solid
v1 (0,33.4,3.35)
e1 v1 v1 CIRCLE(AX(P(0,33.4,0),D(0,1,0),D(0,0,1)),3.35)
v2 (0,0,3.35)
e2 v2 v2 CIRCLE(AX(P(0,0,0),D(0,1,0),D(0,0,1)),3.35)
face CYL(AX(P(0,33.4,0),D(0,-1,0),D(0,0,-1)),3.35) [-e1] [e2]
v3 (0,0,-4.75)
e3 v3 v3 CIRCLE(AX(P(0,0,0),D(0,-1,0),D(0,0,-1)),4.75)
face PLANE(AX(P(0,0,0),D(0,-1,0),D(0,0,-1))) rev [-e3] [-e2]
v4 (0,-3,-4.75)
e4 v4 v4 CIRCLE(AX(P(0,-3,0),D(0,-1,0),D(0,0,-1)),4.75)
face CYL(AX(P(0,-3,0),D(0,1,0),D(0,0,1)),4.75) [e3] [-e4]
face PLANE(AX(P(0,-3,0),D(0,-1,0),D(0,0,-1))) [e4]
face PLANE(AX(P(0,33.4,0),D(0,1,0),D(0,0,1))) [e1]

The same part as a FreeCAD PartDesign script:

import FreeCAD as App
import Part
import Sketcher
from FreeCAD import Vector
Q = App.Units.Quantity

doc = App.newDocument("Part")
params = doc.addObject("Spreadsheet::Sheet", "Params")
for row, (alias, value) in enumerate([
    ("sketch1_diameter", "6.7 mm"),
    ("pad1_length", "33.4 mm"),
    ("sketch2_diameter", "9.5 mm"),
    ("pad2_length", "3 mm"),
], start=1):
    params.set(f"A{row}", alias)
    params.set(f"B{row}", "=" + value)
    params.setAlias(f"B{row}", alias)

body = doc.addObject("PartDesign::Body", "Body")

# Sketch on XZ plane
sketch1 = doc.addObject("Sketcher::SketchObject", "Sketch")
body.addObject(sketch1)
sketch1.AttachmentSupport = (doc.XZ_Plane, [""])
sketch1.MapMode = "FlatFace"
sketch1.addGeometry(Part.Circle(Vector(0, 0, 0), Vector(0, 0, 1), 3.4), False)
sketch1.addConstraint(Sketcher.Constraint("Coincident", 0, 3, -1, 1))
sketch1.addConstraint(Sketcher.Constraint("Diameter", 0, Q("6.7 mm")))
sketch1.setExpression("Constraints[1]", "Params.sketch1_diameter")
pad1 = doc.addObject("PartDesign::Pad", "Pad")
body.addObject(pad1)
pad1.Profile = sketch1
pad1.setExpression("Length", "Params.pad1_length")
pad1.Reversed = True

# Sketch on XZ plane
sketch2 = doc.addObject("Sketcher::SketchObject", "Sketch001")
body.addObject(sketch2)
sketch2.AttachmentSupport = (doc.XZ_Plane, [""])
sketch2.MapMode = "FlatFace"
sketch2.addGeometry(Part.Circle(Vector(0, 0, 0), Vector(0, 0, 1), 4.8), False)
sketch2.addConstraint(Sketcher.Constraint("Coincident", 0, 3, -1, 1))
sketch2.addConstraint(Sketcher.Constraint("Diameter", 0, Q("9.5 mm")))
sketch2.setExpression("Constraints[1]", "Params.sketch2_diameter")
pad2 = doc.addObject("PartDesign::Pad", "Pad001")
body.addObject(pad2)
pad2.Profile = sketch2
pad2.setExpression("Length", "Params.pad2_length")

doc.recompute()
